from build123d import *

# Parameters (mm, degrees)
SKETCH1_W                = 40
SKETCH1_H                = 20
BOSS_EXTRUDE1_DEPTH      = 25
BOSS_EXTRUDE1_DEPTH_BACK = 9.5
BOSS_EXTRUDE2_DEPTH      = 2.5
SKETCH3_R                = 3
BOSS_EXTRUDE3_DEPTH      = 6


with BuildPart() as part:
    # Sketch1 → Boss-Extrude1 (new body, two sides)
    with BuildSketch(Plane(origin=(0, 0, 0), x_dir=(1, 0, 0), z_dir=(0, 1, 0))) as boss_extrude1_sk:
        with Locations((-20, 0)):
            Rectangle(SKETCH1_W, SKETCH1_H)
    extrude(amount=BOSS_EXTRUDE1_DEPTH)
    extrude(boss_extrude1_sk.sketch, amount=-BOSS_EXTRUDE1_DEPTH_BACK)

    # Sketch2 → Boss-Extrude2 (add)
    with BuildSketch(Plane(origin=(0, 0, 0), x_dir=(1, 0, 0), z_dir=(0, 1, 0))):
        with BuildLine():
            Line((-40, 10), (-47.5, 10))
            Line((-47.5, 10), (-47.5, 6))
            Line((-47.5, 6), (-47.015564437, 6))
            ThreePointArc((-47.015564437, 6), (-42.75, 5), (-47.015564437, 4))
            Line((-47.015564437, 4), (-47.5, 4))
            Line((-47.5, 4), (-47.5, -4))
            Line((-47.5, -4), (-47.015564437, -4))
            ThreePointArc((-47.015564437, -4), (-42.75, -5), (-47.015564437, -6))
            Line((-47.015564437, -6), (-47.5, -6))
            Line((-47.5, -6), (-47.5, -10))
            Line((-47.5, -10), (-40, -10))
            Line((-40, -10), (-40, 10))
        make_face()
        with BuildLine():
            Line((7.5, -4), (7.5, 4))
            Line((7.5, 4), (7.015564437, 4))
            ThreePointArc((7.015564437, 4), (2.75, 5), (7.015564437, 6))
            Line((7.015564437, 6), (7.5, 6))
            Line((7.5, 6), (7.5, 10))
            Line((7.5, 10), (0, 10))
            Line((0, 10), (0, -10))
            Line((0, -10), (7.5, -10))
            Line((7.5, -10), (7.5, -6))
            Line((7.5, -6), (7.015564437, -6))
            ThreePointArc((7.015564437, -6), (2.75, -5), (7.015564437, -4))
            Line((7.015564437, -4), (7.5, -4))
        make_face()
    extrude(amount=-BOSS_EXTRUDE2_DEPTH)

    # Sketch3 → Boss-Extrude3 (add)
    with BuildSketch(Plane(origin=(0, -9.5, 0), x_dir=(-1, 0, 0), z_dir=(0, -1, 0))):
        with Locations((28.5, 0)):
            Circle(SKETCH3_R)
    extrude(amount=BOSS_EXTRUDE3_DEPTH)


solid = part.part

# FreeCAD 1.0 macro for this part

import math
import FreeCAD as App
import Part
import Sketcher

V = App.Vector


def add_polygon(sketch, points):
    """Adds a closed chain of lines whose ends are joined by coincident constraints."""
    first, n = sketch.GeometryCount, len(points)
    for a, b in zip(points, points[1:] + points[:1]):
        sketch.addGeometry(Part.LineSegment(App.Vector(*a, 0), App.Vector(*b, 0)), False)
    for i in range(n):
        sketch.addConstraint(Sketcher.Constraint("Coincident", first + i, 2, first + (i + 1) % n, 1))

doc = App.newDocument("Part")
body = doc.addObject("PartDesign::Body", "Body")

# Sketch on XZ plane
sketch1 = body.newObject("Sketcher::SketchObject", "Sketch")
sketch1.AttachmentSupport = (doc.getObject("XZ_Plane"), [""])
sketch1.MapMode = "FlatFace"
add_polygon(sketch1, [(-40, -10), (-40, 10), (0, 10), (0, -10)])  # lines 0-3
sketch1.addConstraint(Sketcher.Constraint("Vertical", 0))
sketch1.addConstraint(Sketcher.Constraint("Horizontal", 1))
sketch1.addConstraint(Sketcher.Constraint("Vertical", 2))
sketch1.addConstraint(Sketcher.Constraint("Horizontal", 3))
sketch1.addConstraint(Sketcher.Constraint("Symmetric", 1, 2, 2, 2, -1, 1))
sketch1.addConstraint(Sketcher.Constraint("DistanceX", 1, 1, 1, 2, 40.0))
sketch1.addConstraint(Sketcher.Constraint("DistanceY", 0, 1, 0, 2, 20.0))
pad1 = body.newObject("PartDesign::Pad", "Pad")
pad1.Profile = sketch1
pad1.Type = "TwoLengths"
pad1.Length = 25
pad1.Length2 = 9.5
pad1.Reversed = True

# Sketch on XZ plane
sketch2 = body.newObject("Sketcher::SketchObject", "Sketch001")
sketch2.AttachmentSupport = (doc.getObject("XZ_Plane"), [""])
sketch2.MapMode = "FlatFace"
sketch2.addGeometry(Part.LineSegment(V(-40, -10, 0), V(-47.5, -10, 0)), False)
sketch2.addGeometry(Part.LineSegment(V(-47.5, -10, 0), V(-47.5, -6, 0)), False)
sketch2.addGeometry(Part.LineSegment(V(-47.5, -6, 0), V(-47.02, -6, 0)), False)
sketch2.addGeometry(Part.ArcOfCircle(Part.Circle(V(-45, -5, 0), V(0, 0, 1), 2.25), math.radians(-154), math.radians(154)), False)
sketch2.addGeometry(Part.LineSegment(V(-47.02, -4, 0), V(-47.5, -4, 0)), False)
sketch2.addGeometry(Part.LineSegment(V(-47.5, -4, 0), V(-47.5, 4, 0)), False)
sketch2.addGeometry(Part.LineSegment(V(-47.5, 4, 0), V(-47.02, 4, 0)), False)
sketch2.addGeometry(Part.ArcOfCircle(Part.Circle(V(-45, 5, 0), V(0, 0, 1), 2.25), math.radians(-154), math.radians(154)), False)
sketch2.addGeometry(Part.LineSegment(V(-47.02, 6, 0), V(-47.5, 6, 0)), False)
sketch2.addGeometry(Part.LineSegment(V(-47.5, 6, 0), V(-47.5, 10, 0)), False)
sketch2.addGeometry(Part.LineSegment(V(-47.5, 10, 0), V(-40, 10, 0)), False)
sketch2.addGeometry(Part.LineSegment(V(-40, 10, 0), V(-40, -10, 0)), False)
sketch2.addGeometry(Part.LineSegment(V(7.5, 4, 0), V(7.5, -4, 0)), False)
sketch2.addGeometry(Part.LineSegment(V(7.5, -4, 0), V(7.02, -4, 0)), False)
sketch2.addGeometry(Part.ArcOfCircle(Part.Circle(V(5, -5, 0), V(0, 0, 1), 2.25), math.radians(26), math.radians(334)), False)
sketch2.addGeometry(Part.LineSegment(V(7.02, -6, 0), V(7.5, -6, 0)), False)
sketch2.addGeometry(Part.LineSegment(V(7.5, -6, 0), V(7.5, -10, 0)), False)
sketch2.addGeometry(Part.LineSegment(V(7.5, -10, 0), V(0, -10, 0)), False)
sketch2.addGeometry(Part.LineSegment(V(0, -10, 0), V(0, 10, 0)), False)
sketch2.addGeometry(Part.LineSegment(V(0, 10, 0), V(7.5, 10, 0)), False)
sketch2.addGeometry(Part.LineSegment(V(7.5, 10, 0), V(7.5, 6, 0)), False)
sketch2.addGeometry(Part.LineSegment(V(7.5, 6, 0), V(7.02, 6, 0)), False)
sketch2.addGeometry(Part.ArcOfCircle(Part.Circle(V(5, 5, 0), V(0, 0, 1), 2.25), math.radians(26), math.radians(334)), False)
sketch2.addGeometry(Part.LineSegment(V(7.02, 4, 0), V(7.5, 4, 0)), False)
sketch2.addConstraint(Sketcher.Constraint("Coincident", 0, 2, 1, 1))
sketch2.addConstraint(Sketcher.Constraint("Coincident", 1, 2, 2, 1))
sketch2.addConstraint(Sketcher.Constraint("Coincident", 2, 2, 3, 1))
sketch2.addConstraint(Sketcher.Constraint("Coincident", 3, 2, 4, 1))
sketch2.addConstraint(Sketcher.Constraint("Coincident", 4, 2, 5, 1))
sketch2.addConstraint(Sketcher.Constraint("Coincident", 5, 2, 6, 1))
sketch2.addConstraint(Sketcher.Constraint("Coincident", 6, 2, 7, 1))
sketch2.addConstraint(Sketcher.Constraint("Coincident", 7, 2, 8, 1))
sketch2.addConstraint(Sketcher.Constraint("Coincident", 8, 2, 9, 1))
sketch2.addConstraint(Sketcher.Constraint("Coincident", 9, 2, 10, 1))
sketch2.addConstraint(Sketcher.Constraint("Coincident", 10, 2, 11, 1))
sketch2.addConstraint(Sketcher.Constraint("Coincident", 11, 2, 0, 1))
sketch2.addConstraint(Sketcher.Constraint("Coincident", 12, 2, 13, 1))
sketch2.addConstraint(Sketcher.Constraint("Coincident", 13, 2, 14, 1))
sketch2.addConstraint(Sketcher.Constraint("Coincident", 14, 2, 15, 1))
sketch2.addConstraint(Sketcher.Constraint("Coincident", 15, 2, 16, 1))
sketch2.addConstraint(Sketcher.Constraint("Coincident", 16, 2, 17, 1))
sketch2.addConstraint(Sketcher.Constraint("Coincident", 17, 2, 18, 1))
sketch2.addConstraint(Sketcher.Constraint("Coincident", 18, 2, 19, 1))
sketch2.addConstraint(Sketcher.Constraint("Coincident", 19, 2, 20, 1))
sketch2.addConstraint(Sketcher.Constraint("Coincident", 20, 2, 21, 1))
sketch2.addConstraint(Sketcher.Constraint("Coincident", 21, 2, 22, 1))
sketch2.addConstraint(Sketcher.Constraint("Coincident", 22, 2, 23, 1))
sketch2.addConstraint(Sketcher.Constraint("Coincident", 23, 2, 12, 1))
sketch2.addConstraint(Sketcher.Constraint("Horizontal", 0))
sketch2.addConstraint(Sketcher.Constraint("Vertical", 1))
sketch2.addConstraint(Sketcher.Constraint("Horizontal", 2))
sketch2.addConstraint(Sketcher.Constraint("Horizontal", 4))
sketch2.addConstraint(Sketcher.Constraint("Vertical", 5))
sketch2.addConstraint(Sketcher.Constraint("Horizontal", 6))
sketch2.addConstraint(Sketcher.Constraint("Horizontal", 8))
sketch2.addConstraint(Sketcher.Constraint("Vertical", 9))
sketch2.addConstraint(Sketcher.Constraint("Horizontal", 10))
sketch2.addConstraint(Sketcher.Constraint("Vertical", 11))
sketch2.addConstraint(Sketcher.Constraint("Vertical", 12))
sketch2.addConstraint(Sketcher.Constraint("Horizontal", 13))
sketch2.addConstraint(Sketcher.Constraint("Horizontal", 15))
sketch2.addConstraint(Sketcher.Constraint("Vertical", 16))
sketch2.addConstraint(Sketcher.Constraint("Horizontal", 17))
sketch2.addConstraint(Sketcher.Constraint("Vertical", 18))
sketch2.addConstraint(Sketcher.Constraint("Horizontal", 19))
sketch2.addConstraint(Sketcher.Constraint("Vertical", 20))
sketch2.addConstraint(Sketcher.Constraint("Horizontal", 21))
sketch2.addConstraint(Sketcher.Constraint("Horizontal", 23))
sketch2.addConstraint(Sketcher.Constraint("Equal", 3, 7))
sketch2.addConstraint(Sketcher.Constraint("Equal", 7, 14))
sketch2.addConstraint(Sketcher.Constraint("Equal", 14, 22))
sketch2.addConstraint(Sketcher.Constraint("Symmetric", 17, 2, 18, 2, -1, 1))
sketch2.addConstraint(Sketcher.Constraint("Symmetric", 3, 3, 7, 3, -1))
sketch2.addConstraint(Sketcher.Constraint("Symmetric", 14, 3, 22, 3, -1))
sketch2.addConstraint(Sketcher.Constraint("Symmetric", 1, 2, 8, 2, -1))
sketch2.addConstraint(Sketcher.Constraint("Symmetric", 15, 2, 20, 2, -1))
sketch2.addConstraint(Sketcher.Constraint("Horizontal", 3, 3, 14, 3))
sketch2.addConstraint(Sketcher.Constraint("Horizontal", 4, 2, 12, 2))
sketch2.addConstraint(Sketcher.Constraint("Horizontal", 2, 2, 14, 2))
sketch2.addConstraint(Sketcher.Constraint("Horizontal", 11, 2, 16, 2))
sketch2.addConstraint(Sketcher.Constraint("Horizontal", 10, 2, 18, 2))
sketch2.addConstraint(Sketcher.Constraint("Horizontal", 6, 2, 22, 2))
sketch2.addConstraint(Sketcher.Constraint("Vertical", 2, 2, 3, 2))
sketch2.addConstraint(Sketcher.Constraint("Vertical", 1, 2, 4, 2))
sketch2.addConstraint(Sketcher.Constraint("Vertical", 3, 2, 6, 2))
sketch2.addConstraint(Sketcher.Constraint("Vertical", 12, 2, 15, 2))
sketch2.addConstraint(Sketcher.Constraint("Equal", 8, 13))
sketch2.addConstraint(Sketcher.Constraint("Equal", 10, 17))
sketch2.addConstraint(Sketcher.Constraint("DistanceY", 1, 1, 1, 2, 4.0))
sketch2.addConstraint(Sketcher.Constraint("DistanceY", 5, 1, 5, 2, 8.0))
sketch2.addConstraint(Sketcher.Constraint("DistanceY", 11, 2, 11, 1, 20.0))
sketch2.addConstraint(Sketcher.Constraint("Radius", 3, 2.25))
sketch2.addConstraint(Sketcher.Constraint("DistanceX", 0, 2, 0, 1, 7.5))
sketch2.addConstraint(Sketcher.Constraint("DistanceX", 3, 3, -1, 1, 45.0))
sketch2.addConstraint(Sketcher.Constraint("DistanceX", -1, 1, 14, 3, 5.0))
pad2 = body.newObject("PartDesign::Pad", "Pad001")
pad2.Profile = sketch2
pad2.Length = 2.5

# Sketch on XZ plane
sketch3 = body.newObject("Sketcher::SketchObject", "Sketch002")
sketch3.AttachmentSupport = (doc.getObject("XZ_Plane"), [""])
sketch3.MapMode = "FlatFace"
sketch3.AttachmentOffset = App.Placement(V(0, 0, 9.5), App.Rotation())
sketch3.addGeometry(Part.Circle(V(-28.5, 0, 0), V(0, 0, 1), 3), False)
sketch3.addConstraint(Sketcher.Constraint("PointOnObject", 0, 3, -1))
sketch3.addConstraint(Sketcher.Constraint("Diameter", 0, 6.0))
sketch3.addConstraint(Sketcher.Constraint("DistanceX", 0, 3, -1, 1, 28.5))
pad3 = body.newObject("PartDesign::Pad", "Pad002")
pad3.Profile = sketch3
pad3.Length = 6

doc.recompute()
